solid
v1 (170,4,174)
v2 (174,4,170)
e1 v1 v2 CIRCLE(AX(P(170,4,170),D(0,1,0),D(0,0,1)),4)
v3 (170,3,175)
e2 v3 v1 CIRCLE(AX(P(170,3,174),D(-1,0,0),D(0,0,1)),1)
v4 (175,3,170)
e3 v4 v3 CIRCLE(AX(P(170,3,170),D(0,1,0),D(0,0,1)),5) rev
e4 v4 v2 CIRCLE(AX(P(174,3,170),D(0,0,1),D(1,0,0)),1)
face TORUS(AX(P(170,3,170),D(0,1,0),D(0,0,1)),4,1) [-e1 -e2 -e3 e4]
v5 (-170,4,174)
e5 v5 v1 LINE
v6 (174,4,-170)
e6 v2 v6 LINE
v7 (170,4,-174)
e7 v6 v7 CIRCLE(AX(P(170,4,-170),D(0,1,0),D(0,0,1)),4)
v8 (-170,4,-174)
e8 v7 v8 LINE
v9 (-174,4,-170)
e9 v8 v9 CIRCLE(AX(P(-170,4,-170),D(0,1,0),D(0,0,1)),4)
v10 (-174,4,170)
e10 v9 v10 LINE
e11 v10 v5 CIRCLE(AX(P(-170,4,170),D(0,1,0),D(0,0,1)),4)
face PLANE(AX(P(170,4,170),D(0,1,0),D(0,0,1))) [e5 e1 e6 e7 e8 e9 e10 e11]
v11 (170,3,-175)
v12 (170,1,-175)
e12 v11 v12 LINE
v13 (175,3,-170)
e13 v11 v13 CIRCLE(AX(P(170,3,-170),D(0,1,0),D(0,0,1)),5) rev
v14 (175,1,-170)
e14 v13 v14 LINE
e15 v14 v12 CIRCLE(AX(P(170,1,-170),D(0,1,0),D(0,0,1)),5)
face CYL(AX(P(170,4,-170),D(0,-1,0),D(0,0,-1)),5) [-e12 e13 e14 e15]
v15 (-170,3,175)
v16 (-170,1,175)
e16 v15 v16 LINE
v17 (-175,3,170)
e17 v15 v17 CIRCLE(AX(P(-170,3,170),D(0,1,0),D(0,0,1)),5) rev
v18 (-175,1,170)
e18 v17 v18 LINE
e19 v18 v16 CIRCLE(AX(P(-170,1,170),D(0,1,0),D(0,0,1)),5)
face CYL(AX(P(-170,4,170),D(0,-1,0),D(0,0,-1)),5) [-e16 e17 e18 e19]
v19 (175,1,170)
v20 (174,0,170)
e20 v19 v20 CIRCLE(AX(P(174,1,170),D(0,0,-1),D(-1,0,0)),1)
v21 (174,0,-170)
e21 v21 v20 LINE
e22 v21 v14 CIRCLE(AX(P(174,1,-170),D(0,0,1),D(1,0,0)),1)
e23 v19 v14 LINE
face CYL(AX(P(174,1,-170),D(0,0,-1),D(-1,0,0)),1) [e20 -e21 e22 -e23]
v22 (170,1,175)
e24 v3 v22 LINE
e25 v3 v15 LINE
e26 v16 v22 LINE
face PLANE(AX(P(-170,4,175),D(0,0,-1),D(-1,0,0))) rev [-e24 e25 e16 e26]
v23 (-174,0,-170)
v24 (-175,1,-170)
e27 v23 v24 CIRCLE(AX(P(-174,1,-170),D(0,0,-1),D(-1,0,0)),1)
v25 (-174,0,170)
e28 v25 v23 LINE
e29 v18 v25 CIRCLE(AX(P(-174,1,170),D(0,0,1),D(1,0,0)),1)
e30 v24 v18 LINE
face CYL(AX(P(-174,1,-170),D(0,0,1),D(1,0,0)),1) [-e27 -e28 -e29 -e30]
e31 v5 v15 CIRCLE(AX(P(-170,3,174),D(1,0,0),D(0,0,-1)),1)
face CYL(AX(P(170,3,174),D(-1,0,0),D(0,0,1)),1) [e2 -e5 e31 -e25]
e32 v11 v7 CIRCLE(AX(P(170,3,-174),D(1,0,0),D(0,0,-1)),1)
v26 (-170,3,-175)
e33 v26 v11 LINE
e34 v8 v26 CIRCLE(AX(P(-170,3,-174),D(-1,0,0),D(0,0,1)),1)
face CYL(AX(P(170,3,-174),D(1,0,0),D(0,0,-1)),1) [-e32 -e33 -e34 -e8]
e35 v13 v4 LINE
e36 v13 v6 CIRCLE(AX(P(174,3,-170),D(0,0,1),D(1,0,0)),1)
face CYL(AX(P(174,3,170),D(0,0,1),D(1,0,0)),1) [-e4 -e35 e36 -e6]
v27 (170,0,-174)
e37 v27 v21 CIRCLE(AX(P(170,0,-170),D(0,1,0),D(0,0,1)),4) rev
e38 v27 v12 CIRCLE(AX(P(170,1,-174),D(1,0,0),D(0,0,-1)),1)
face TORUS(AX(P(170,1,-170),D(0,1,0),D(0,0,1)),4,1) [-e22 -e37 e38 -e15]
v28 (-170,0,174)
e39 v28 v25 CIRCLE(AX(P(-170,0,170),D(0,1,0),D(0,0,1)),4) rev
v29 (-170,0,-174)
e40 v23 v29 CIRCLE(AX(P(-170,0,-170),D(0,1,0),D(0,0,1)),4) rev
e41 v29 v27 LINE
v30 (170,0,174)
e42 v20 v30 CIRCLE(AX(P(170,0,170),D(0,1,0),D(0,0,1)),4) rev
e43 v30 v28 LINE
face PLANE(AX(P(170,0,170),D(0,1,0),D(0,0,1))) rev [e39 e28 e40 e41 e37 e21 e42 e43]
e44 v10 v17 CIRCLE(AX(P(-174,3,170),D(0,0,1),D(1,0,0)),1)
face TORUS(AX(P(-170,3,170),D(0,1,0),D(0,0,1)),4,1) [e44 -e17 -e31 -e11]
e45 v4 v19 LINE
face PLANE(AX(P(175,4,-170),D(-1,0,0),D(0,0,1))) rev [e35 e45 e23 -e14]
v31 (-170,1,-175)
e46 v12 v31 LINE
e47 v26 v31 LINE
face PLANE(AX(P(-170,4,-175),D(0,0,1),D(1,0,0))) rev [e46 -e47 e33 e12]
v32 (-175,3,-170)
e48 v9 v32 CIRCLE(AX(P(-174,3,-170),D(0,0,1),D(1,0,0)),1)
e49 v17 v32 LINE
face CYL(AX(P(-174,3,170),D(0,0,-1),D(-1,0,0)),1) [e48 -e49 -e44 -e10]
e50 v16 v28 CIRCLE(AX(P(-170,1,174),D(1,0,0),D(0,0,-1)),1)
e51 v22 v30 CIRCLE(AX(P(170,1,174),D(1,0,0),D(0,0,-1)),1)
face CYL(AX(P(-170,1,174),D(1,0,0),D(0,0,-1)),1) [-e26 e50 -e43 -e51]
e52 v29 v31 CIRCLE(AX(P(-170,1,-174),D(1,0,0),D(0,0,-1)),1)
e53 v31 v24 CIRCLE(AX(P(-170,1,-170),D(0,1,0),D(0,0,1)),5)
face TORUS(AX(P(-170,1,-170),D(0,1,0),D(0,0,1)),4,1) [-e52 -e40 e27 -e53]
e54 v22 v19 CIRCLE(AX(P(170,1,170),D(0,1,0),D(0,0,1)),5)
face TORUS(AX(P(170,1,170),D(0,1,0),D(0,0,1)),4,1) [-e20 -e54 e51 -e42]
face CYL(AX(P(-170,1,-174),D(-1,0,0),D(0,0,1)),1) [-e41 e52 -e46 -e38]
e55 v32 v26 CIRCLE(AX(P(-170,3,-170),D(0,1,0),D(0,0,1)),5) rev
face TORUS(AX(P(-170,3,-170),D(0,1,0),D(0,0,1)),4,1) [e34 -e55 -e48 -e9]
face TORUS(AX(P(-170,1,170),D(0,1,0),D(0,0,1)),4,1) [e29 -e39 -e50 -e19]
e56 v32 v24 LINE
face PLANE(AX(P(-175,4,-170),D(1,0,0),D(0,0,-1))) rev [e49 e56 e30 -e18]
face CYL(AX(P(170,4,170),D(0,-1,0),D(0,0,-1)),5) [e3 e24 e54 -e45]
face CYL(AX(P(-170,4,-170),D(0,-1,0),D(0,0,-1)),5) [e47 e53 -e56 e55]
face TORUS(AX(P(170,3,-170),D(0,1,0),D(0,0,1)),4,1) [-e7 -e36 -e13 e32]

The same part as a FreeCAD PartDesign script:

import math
import FreeCAD as App
import Part
import Sketcher
from FreeCAD import Vector
Q = App.Units.Quantity


def edges_at(feature, points):
    """Names of the edges that pass closest to the given points."""
    edges = feature.Shape.Edges
    near = lambda p: min(range(len(edges)), key=lambda i: edges[i].distToShape(Part.Vertex(*p))[0])
    return sorted({f"Edge{near(p) + 1}" for p in points})

doc = App.newDocument("Part")
body = doc.addObject("PartDesign::Body", "Body")

sketch1 = body.newObject("Sketcher::SketchObject", "Sketch")
sketch1.AttachmentSupport = (doc.getObject("XZ_Plane"), [""])
sketch1.MapMode = "FlatFace"
sketch1.addGeometry(Part.LineSegment(Vector(170, -175, 0), Vector(-170, -175, 0)), False)
sketch1.addGeometry(Part.ArcOfCircle(Part.Circle(Vector(-170, -170, 0), Vector(0, 0, 1), 5), math.radians(180), math.radians(270)), False)
sketch1.addGeometry(Part.LineSegment(Vector(-175, -170, 0), Vector(-175, 170, 0)), False)
sketch1.addGeometry(Part.ArcOfCircle(Part.Circle(Vector(-170, 170, 0), Vector(0, 0, 1), 5), math.radians(90), math.radians(180)), False)
sketch1.addGeometry(Part.LineSegment(Vector(-170, 175, 0), Vector(170, 175, 0)), False)
sketch1.addGeometry(Part.ArcOfCircle(Part.Circle(Vector(170, 170, 0), Vector(0, 0, 1), 5), math.radians(0), math.radians(90)), False)
sketch1.addGeometry(Part.LineSegment(Vector(175, 170, 0), Vector(175, -170, 0)), False)
sketch1.addGeometry(Part.ArcOfCircle(Part.Circle(Vector(170, -170, 0), Vector(0, 0, 1), 5), math.radians(-90), math.radians(0)), False)
sketch1.addConstraint(Sketcher.Constraint("Tangent", 0, 2, 1, 2))
sketch1.addConstraint(Sketcher.Constraint("Tangent", 1, 1, 2, 1))
sketch1.addConstraint(Sketcher.Constraint("Tangent", 2, 2, 3, 2))
sketch1.addConstraint(Sketcher.Constraint("Tangent", 3, 1, 4, 1))
sketch1.addConstraint(Sketcher.Constraint("Tangent", 4, 2, 5, 2))
sketch1.addConstraint(Sketcher.Constraint("Tangent", 5, 1, 6, 1))
sketch1.addConstraint(Sketcher.Constraint("Tangent", 6, 2, 7, 2))
sketch1.addConstraint(Sketcher.Constraint("Tangent", 7, 1, 0, 1))
sketch1.addConstraint(Sketcher.Constraint("Horizontal", 0))
sketch1.addConstraint(Sketcher.Constraint("Vertical", 2))
sketch1.addConstraint(Sketcher.Constraint("Horizontal", 4))
sketch1.addConstraint(Sketcher.Constraint("Vertical", 6))
sketch1.addConstraint(Sketcher.Constraint("Equal", 1, 3))
sketch1.addConstraint(Sketcher.Constraint("Equal", 3, 5))
sketch1.addConstraint(Sketcher.Constraint("Equal", 5, 7))
sketch1.addConstraint(Sketcher.Constraint("Symmetric", 1, 3, 5, 3, -1, 1))
sketch1.addConstraint(Sketcher.Constraint("Equal", 4, 2))
sketch1.addConstraint(Sketcher.Constraint("Radius", 1, Q("5 mm")))
sketch1.addConstraint(Sketcher.Constraint("DistanceX", 0, 2, 0, 1, Q("340 mm")))
pad1 = body.newObject("PartDesign::Pad", "Pad")
pad1.Profile = sketch1
pad1.Length = 4
pad1.Reversed = True
doc.recompute()

fillet = body.newObject("PartDesign::Fillet", "Fillet")
fillet.Base = (pad1, edges_at(pad1, [
    (0, 0, -175),
    (173.536, 0, -173.536),
    (175, 0, 0),
    (173.536, 0, 173.536),
    (173.536, 4, -173.536),
    (0, 4, -175),
    (-173.536, 4, -173.536),
    (-175, 4, 0),
    (-173.536, 4, 173.536),
    (0, 4, 175),
    (173.536, 4, 173.536),
    (0, 0, 175),
    (175, 4, 0),
    (-173.536, 0, 173.536),
    (-175, 0, 0),
    (-173.536, 0, -173.536),
]))
fillet.Radius = 1

doc.recompute()
